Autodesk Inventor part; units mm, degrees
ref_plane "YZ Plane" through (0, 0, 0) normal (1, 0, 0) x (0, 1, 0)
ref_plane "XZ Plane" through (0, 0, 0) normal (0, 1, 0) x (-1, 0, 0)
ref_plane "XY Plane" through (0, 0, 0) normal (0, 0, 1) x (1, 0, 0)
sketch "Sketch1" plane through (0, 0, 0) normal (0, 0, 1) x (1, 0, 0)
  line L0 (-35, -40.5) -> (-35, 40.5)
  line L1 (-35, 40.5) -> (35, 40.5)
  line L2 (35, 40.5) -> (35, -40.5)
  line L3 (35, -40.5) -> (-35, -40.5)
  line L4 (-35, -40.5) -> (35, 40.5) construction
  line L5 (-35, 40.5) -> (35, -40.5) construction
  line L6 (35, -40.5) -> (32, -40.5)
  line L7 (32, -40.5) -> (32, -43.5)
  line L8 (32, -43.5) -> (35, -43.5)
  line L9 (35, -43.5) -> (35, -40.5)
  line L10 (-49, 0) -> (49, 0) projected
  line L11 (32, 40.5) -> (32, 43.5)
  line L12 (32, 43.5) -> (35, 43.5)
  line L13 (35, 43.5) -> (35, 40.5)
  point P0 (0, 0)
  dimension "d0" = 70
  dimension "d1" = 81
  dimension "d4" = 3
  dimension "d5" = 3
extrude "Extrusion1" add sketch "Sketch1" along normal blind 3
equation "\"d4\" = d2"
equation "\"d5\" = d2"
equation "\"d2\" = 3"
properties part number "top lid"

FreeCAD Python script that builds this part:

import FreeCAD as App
import Part
import Sketcher
Q = App.Units.Quantity


def add_polygon(sketch, points):
    """Adds a closed chain of lines whose ends are joined by coincident constraints."""
    first, n = sketch.GeometryCount, len(points)
    for a, b in zip(points, points[1:] + points[:1]):
        sketch.addGeometry(Part.LineSegment(App.Vector(*a, 0), App.Vector(*b, 0)), False)
    for i in range(n):
        sketch.addConstraint(Sketcher.Constraint("Coincident", first + i, 2, first + (i + 1) % n, 1))

doc = App.newDocument("Part")
body = doc.addObject("PartDesign::Body", "Body")

# Sketch on XY plane
sketch1 = body.newObject("Sketcher::SketchObject", "Sketch")
sketch1.AttachmentSupport = (doc.getObject("XY_Plane"), [""])
sketch1.MapMode = "FlatFace"
add_polygon(sketch1, [(-35, -40.5), (32, -40.5), (32, -43.5), (35, -43.5), (35, 43.5), (32, 43.5), (32, 40.5), (-35, 40.5)])  # lines 0-7
sketch1.addConstraint([
    Sketcher.Constraint("Horizontal", 0),
    Sketcher.Constraint("Vertical", 1),
    Sketcher.Constraint("Horizontal", 2),
    Sketcher.Constraint("Vertical", 3),
    Sketcher.Constraint("Horizontal", 4),
    Sketcher.Constraint("Vertical", 5),
    Sketcher.Constraint("Horizontal", 6),
    Sketcher.Constraint("Vertical", 7),
    Sketcher.Constraint("Symmetric", 1, 2, 4, 2, -1),
    Sketcher.Constraint("Equal", 4, 1),
    Sketcher.Constraint("Equal", 1, 5),
    Sketcher.Constraint("DistanceX", 2, 1, 2, 2, Q("3 mm")),
    Sketcher.Constraint("DistanceY", 7, 2, 7, 1, Q("81 mm")),
    Sketcher.Constraint("DistanceX", 6, 2, 3, 2, Q("70 mm")),
    Sketcher.Constraint("DistanceX", -1, 1, 0, 2, Q("32 mm")),
])
pad1 = body.newObject("PartDesign::Pad", "Pad")
pad1.Profile = sketch1
pad1.Length = 3

doc.recompute()
